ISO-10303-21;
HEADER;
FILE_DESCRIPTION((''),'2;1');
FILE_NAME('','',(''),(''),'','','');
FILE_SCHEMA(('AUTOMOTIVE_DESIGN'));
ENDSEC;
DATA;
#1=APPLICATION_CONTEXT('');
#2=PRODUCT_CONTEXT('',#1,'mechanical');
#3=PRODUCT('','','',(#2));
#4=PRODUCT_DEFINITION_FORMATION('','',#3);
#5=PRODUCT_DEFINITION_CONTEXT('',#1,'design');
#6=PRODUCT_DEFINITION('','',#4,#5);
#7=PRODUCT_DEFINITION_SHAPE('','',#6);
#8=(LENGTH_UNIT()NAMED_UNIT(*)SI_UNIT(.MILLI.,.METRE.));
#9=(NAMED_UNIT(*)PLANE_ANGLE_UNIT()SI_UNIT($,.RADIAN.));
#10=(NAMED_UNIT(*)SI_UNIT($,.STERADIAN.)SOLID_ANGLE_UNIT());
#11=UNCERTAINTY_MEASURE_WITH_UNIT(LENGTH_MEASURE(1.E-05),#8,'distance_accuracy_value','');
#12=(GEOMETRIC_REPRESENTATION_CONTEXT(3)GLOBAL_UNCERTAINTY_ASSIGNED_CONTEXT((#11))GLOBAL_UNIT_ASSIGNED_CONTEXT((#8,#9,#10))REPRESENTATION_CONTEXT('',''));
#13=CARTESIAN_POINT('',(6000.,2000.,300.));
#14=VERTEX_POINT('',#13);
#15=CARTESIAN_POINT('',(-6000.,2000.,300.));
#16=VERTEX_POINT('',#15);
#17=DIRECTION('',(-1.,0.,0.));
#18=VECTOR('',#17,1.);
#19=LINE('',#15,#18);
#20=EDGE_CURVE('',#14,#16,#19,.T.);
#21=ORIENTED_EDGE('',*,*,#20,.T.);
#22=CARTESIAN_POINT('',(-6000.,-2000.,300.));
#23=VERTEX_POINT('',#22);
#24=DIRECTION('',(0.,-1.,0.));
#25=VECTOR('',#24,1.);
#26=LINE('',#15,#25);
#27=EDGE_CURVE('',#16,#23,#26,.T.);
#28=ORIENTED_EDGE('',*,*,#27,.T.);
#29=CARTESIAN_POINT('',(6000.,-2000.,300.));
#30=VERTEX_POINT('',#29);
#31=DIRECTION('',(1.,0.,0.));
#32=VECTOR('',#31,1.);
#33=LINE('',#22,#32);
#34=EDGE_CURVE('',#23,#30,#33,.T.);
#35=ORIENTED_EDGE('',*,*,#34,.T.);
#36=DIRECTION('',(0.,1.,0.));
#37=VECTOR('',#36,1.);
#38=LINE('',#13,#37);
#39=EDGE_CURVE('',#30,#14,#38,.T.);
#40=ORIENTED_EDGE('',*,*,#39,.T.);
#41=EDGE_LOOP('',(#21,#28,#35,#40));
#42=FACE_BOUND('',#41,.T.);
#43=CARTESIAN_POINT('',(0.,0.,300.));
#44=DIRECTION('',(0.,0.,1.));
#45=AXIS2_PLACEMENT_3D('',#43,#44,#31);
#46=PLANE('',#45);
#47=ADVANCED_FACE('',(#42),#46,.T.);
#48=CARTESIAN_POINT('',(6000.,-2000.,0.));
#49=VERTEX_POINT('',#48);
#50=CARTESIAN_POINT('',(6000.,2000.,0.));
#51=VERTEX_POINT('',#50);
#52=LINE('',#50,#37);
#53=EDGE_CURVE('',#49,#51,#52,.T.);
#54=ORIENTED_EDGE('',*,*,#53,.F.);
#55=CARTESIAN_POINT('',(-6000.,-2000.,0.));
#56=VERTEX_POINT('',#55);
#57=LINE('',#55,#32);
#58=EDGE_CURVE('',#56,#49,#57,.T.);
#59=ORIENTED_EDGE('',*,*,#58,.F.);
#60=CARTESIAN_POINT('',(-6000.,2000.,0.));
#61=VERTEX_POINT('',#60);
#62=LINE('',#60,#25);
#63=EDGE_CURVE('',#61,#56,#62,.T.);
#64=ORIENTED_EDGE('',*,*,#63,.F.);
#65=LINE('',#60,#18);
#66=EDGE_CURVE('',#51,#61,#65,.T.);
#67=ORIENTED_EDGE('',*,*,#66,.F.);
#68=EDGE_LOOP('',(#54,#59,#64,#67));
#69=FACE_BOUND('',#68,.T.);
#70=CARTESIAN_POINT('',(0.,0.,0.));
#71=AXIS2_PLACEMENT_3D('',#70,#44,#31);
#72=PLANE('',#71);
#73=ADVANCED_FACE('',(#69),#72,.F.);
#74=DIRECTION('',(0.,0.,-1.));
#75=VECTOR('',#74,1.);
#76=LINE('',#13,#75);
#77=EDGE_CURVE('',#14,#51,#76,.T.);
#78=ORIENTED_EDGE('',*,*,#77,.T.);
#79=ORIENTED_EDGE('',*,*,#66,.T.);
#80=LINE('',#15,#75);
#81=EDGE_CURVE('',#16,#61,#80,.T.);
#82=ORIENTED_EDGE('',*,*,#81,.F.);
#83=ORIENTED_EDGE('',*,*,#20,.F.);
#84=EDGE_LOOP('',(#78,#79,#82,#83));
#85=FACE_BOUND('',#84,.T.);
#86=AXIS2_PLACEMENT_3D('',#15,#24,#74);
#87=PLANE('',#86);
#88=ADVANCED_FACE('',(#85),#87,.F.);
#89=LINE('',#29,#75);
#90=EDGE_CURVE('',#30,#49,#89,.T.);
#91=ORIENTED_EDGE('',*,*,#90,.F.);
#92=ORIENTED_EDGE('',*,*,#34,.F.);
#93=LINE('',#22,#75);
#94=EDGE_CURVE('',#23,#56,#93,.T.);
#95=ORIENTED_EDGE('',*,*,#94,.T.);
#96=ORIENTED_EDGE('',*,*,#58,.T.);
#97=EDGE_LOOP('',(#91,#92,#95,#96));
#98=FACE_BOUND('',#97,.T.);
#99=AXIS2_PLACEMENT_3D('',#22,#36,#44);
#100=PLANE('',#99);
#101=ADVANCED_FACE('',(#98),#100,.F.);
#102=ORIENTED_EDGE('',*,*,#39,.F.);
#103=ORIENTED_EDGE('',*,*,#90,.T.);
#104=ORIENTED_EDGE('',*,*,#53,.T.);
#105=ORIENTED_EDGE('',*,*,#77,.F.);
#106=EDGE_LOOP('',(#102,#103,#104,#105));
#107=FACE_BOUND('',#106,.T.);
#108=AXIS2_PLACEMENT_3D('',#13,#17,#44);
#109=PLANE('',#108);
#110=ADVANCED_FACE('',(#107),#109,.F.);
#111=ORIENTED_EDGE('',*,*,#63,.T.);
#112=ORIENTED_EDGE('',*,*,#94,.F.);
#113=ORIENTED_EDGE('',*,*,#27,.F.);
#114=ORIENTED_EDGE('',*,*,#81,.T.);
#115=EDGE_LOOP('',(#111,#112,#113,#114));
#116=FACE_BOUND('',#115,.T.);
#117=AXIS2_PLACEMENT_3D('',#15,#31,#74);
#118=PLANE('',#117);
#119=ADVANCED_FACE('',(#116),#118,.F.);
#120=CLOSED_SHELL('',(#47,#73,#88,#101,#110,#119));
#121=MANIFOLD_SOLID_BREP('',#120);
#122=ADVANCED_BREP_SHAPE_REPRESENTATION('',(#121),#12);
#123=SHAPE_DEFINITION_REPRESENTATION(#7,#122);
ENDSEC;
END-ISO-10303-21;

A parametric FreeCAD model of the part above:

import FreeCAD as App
import Part
import Sketcher
Q = App.Units.Quantity


def add_polygon(sketch, points):
    """Adds a closed chain of lines whose ends are joined by coincident constraints."""
    first, n = sketch.GeometryCount, len(points)
    for a, b in zip(points, points[1:] + points[:1]):
        sketch.addGeometry(Part.LineSegment(App.Vector(*a, 0), App.Vector(*b, 0)), False)
    for i in range(n):
        sketch.addConstraint(Sketcher.Constraint("Coincident", first + i, 2, first + (i + 1) % n, 1))

doc = App.newDocument("Part")
params = doc.addObject("Spreadsheet::Sheet", "Params")
for row, (alias, value) in enumerate([
    ("sketch1_width", "12000 mm"),
    ("sketch1_height", "4000 mm"),
    ("pad1_length", "300 mm"),
], start=1):
    params.set(f"A{row}", alias)
    params.set(f"B{row}", "=" + value)
    params.setAlias(f"B{row}", alias)

body = doc.addObject("PartDesign::Body", "Body")

# Sketch on XY plane
sketch1 = doc.addObject("Sketcher::SketchObject", "Sketch")
body.addObject(sketch1)
sketch1.AttachmentSupport = (doc.XY_Plane, [""])
sketch1.MapMode = "FlatFace"
add_polygon(sketch1, [(-6000, 2000), (-6000, -2000), (6000, -2000), (6000, 2000)])  # lines 0-3
sketch1.addConstraint(Sketcher.Constraint("Vertical", 0))
sketch1.addConstraint(Sketcher.Constraint("Horizontal", 1))
sketch1.addConstraint(Sketcher.Constraint("Vertical", 2))
sketch1.addConstraint(Sketcher.Constraint("Horizontal", 3))
sketch1.addConstraint(Sketcher.Constraint("Symmetric", 0, 2, 2, 2, -1, 1))
sketch1.addConstraint(Sketcher.Constraint("DistanceX", 1, 1, 1, 2, Q("12000 mm")))
sketch1.addConstraint(Sketcher.Constraint("DistanceY", 0, 2, 0, 1, Q("4000 mm")))
sketch1.setExpression("Constraints[9]", "Params.sketch1_width")
sketch1.setExpression("Constraints[10]", "Params.sketch1_height")
pad1 = doc.addObject("PartDesign::Pad", "Pad")
body.addObject(pad1)
pad1.Profile = sketch1
pad1.setExpression("Length", "Params.pad1_length")

doc.recompute()
